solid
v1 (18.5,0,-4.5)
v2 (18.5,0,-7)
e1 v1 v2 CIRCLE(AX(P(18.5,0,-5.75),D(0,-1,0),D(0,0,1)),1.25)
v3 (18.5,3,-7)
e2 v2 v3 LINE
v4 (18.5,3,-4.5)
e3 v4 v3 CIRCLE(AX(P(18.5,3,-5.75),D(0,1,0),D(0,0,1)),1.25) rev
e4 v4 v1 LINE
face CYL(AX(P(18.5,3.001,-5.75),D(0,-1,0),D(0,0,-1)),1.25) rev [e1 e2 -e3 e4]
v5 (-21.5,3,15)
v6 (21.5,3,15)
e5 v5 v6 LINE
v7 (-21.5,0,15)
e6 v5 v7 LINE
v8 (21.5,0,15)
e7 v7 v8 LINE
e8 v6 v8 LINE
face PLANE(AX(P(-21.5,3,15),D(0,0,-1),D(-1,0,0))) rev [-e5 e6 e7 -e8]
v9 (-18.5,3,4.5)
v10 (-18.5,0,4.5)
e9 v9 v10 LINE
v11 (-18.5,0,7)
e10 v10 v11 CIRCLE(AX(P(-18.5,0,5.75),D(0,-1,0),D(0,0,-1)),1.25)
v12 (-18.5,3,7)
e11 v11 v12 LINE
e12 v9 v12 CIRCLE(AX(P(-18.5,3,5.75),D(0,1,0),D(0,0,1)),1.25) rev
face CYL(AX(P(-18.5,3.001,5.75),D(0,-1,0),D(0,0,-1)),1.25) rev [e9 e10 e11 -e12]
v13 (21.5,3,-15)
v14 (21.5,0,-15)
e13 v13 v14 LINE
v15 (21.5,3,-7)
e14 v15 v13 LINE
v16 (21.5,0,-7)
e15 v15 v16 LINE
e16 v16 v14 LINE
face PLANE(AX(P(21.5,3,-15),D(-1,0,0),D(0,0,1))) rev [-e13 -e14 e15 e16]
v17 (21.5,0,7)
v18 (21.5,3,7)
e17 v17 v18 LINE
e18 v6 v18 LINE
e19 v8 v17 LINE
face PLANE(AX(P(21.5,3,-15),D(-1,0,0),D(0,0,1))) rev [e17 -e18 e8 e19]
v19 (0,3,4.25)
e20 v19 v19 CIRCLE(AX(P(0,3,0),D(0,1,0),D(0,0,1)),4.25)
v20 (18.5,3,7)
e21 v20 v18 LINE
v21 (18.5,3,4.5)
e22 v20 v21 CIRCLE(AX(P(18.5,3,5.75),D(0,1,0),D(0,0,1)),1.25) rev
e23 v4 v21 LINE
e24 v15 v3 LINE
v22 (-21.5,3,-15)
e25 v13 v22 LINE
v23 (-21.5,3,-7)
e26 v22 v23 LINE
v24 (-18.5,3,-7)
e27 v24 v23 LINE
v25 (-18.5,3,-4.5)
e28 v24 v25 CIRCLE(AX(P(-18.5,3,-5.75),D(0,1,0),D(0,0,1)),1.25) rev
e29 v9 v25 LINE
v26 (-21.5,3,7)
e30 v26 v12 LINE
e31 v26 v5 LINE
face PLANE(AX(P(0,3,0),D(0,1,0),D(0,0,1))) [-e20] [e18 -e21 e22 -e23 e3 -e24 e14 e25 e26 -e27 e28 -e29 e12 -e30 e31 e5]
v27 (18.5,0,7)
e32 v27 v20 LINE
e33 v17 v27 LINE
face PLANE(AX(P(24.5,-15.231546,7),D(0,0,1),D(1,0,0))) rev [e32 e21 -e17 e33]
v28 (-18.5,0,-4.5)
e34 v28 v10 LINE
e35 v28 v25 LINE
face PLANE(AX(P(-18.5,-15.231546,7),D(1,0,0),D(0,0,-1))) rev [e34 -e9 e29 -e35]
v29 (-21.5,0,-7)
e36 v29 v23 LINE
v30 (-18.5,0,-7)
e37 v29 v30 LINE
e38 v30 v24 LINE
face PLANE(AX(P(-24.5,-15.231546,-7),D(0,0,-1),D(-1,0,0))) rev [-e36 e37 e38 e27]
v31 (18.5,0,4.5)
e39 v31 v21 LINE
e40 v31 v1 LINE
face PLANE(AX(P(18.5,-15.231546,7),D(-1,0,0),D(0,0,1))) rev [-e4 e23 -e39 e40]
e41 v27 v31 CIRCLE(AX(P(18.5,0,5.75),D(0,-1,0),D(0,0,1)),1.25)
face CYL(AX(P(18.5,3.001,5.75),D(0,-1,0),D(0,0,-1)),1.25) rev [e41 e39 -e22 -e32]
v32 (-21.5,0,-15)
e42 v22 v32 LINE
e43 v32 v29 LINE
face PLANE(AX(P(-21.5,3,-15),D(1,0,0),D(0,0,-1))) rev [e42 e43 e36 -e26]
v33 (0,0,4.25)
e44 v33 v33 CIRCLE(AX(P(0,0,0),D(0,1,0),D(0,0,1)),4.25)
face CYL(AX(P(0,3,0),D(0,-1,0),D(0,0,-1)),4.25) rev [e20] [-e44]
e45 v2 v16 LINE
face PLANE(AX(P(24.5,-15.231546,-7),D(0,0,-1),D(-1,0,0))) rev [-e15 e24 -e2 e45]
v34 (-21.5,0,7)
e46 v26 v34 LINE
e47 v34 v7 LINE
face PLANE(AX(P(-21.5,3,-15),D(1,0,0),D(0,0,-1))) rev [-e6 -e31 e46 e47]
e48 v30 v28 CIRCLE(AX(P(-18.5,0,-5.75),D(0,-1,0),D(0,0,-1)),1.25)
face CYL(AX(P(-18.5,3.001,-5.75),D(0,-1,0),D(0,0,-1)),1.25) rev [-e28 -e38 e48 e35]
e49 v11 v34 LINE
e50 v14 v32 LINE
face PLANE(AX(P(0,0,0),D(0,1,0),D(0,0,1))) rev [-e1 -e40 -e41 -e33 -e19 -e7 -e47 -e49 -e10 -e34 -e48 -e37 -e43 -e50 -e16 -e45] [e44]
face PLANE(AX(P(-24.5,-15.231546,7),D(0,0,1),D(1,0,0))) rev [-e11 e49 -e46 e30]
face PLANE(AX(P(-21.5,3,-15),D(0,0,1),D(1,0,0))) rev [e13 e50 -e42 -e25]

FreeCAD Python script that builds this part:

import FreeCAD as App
import Part
import Sketcher

V = App.Vector

doc = App.newDocument("Part")
body = doc.addObject("PartDesign::Body", "Body")

sketch1 = body.newObject("Sketcher::SketchObject", "Sketch")
sketch1.AttachmentSupport = (doc.getObject("XZ_Plane"), [""])
sketch1.MapMode = "FlatFace"
sketch1.addGeometry(Part.LineSegment(V(-21.5, -15, 0), V(-21.5, 15, 0)), False)
sketch1.addGeometry(Part.LineSegment(V(-21.5, 15, 0), V(21.5, 15, 0)), False)
sketch1.addGeometry(Part.LineSegment(V(21.5, 15, 0), V(21.5, -15, 0)), False)
sketch1.addGeometry(Part.LineSegment(V(21.5, -15, 0), V(-21.5, -15, 0)), False)
sketch1.addGeometry(Part.Circle(V(0, 0, 0), V(0, 0, 1), 4.2), False)
sketch1.addConstraint(Sketcher.Constraint("Coincident", 0, 2, 1, 1))
sketch1.addConstraint(Sketcher.Constraint("Coincident", 1, 2, 2, 1))
sketch1.addConstraint(Sketcher.Constraint("Coincident", 2, 2, 3, 1))
sketch1.addConstraint(Sketcher.Constraint("Coincident", 3, 2, 0, 1))
sketch1.addConstraint(Sketcher.Constraint("Vertical", 0))
sketch1.addConstraint(Sketcher.Constraint("Horizontal", 1))
sketch1.addConstraint(Sketcher.Constraint("Vertical", 2))
sketch1.addConstraint(Sketcher.Constraint("Horizontal", 3))
sketch1.addConstraint(Sketcher.Constraint("Coincident", 4, 3, -1, 1))
sketch1.addConstraint(Sketcher.Constraint("Symmetric", 0, 2, 2, 2, -1, 1))
sketch1.addConstraint(Sketcher.Constraint("Diameter", 4, 8.5))
sketch1.addConstraint(Sketcher.Constraint("DistanceX", 1, 1, 1, 2, 43.0))
sketch1.addConstraint(Sketcher.Constraint("DistanceY", 0, 1, 0, 2, 30.0))
pad1 = body.newObject("PartDesign::Pad", "Pad")
pad1.Profile = sketch1
pad1.Length = 3
pad1.Reversed = True

sketch2 = body.newObject("Sketcher::SketchObject", "Sketch001")
sketch2.AttachmentSupport = (doc.getObject("XZ_Plane"), [""])
sketch2.MapMode = "FlatFace"
sketch2.AttachmentOffset = App.Placement(V(0, 0, -3), App.Rotation())
sketch2.addGeometry(Part.LineSegment(V(18, -7, 0), V(18, 7, 0)), False)
sketch2.addGeometry(Part.LineSegment(V(18, 7, 0), V(24, 7, 0)), False)
sketch2.addGeometry(Part.LineSegment(V(24, 7, 0), V(24, -7, 0)), False)
sketch2.addGeometry(Part.LineSegment(V(24, -7, 0), V(18, -7, 0)), False)
sketch2.addGeometry(Part.LineSegment(V(-24, -7, 0), V(-24, 7, 0)), False)
sketch2.addGeometry(Part.LineSegment(V(-24, 7, 0), V(-18, 7, 0)), False)
sketch2.addGeometry(Part.LineSegment(V(-18, 7, 0), V(-18, -7, 0)), False)
sketch2.addGeometry(Part.LineSegment(V(-18, -7, 0), V(-24, -7, 0)), False)
sketch2.addConstraint(Sketcher.Constraint("Coincident", 0, 2, 1, 1))
sketch2.addConstraint(Sketcher.Constraint("Coincident", 1, 2, 2, 1))
sketch2.addConstraint(Sketcher.Constraint("Coincident", 2, 2, 3, 1))
sketch2.addConstraint(Sketcher.Constraint("Coincident", 3, 2, 0, 1))
sketch2.addConstraint(Sketcher.Constraint("Coincident", 4, 2, 5, 1))
sketch2.addConstraint(Sketcher.Constraint("Coincident", 5, 2, 6, 1))
sketch2.addConstraint(Sketcher.Constraint("Coincident", 6, 2, 7, 1))
sketch2.addConstraint(Sketcher.Constraint("Coincident", 7, 2, 4, 1))
sketch2.addConstraint(Sketcher.Constraint("Vertical", 0))
sketch2.addConstraint(Sketcher.Constraint("Horizontal", 1))
sketch2.addConstraint(Sketcher.Constraint("Vertical", 2))
sketch2.addConstraint(Sketcher.Constraint("Horizontal", 3))
sketch2.addConstraint(Sketcher.Constraint("Vertical", 4))
sketch2.addConstraint(Sketcher.Constraint("Horizontal", 5))
sketch2.addConstraint(Sketcher.Constraint("Vertical", 6))
sketch2.addConstraint(Sketcher.Constraint("Horizontal", 7))
sketch2.addConstraint(Sketcher.Constraint("Symmetric", 2, 2, 4, 2, -1, 1))
sketch2.addConstraint(Sketcher.Constraint("Symmetric", 0, 2, 6, 2, -1, 1))
sketch2.addConstraint(Sketcher.Constraint("Horizontal", 1, 2, 4, 2))
sketch2.addConstraint(Sketcher.Constraint("DistanceX", 1, 1, 1, 2, 6.0))
sketch2.addConstraint(Sketcher.Constraint("DistanceY", 0, 1, 0, 2, 14.0))
sketch2.addConstraint(Sketcher.Constraint("DistanceX", 4, 2, 0, 2, 43.0))
pocket1 = body.newObject("PartDesign::Pocket", "Pocket")
pocket1.Profile = sketch2
pocket1.Length = 3
pocket1.Reversed = True

sketch3 = body.newObject("Sketcher::SketchObject", "Sketch002")
sketch3.AttachmentSupport = (doc.getObject("XZ_Plane"), [""])
sketch3.MapMode = "FlatFace"
sketch3.addGeometry(Part.Circle(V(-18.5, 5.8, 0), V(0, 0, 1), 1.2), False)
sketch3.addConstraint(Sketcher.Constraint("Diameter", 0, 2.5))
sketch3.addConstraint(Sketcher.Constraint("DistanceX", 0, 3, -1, 1, 18.5))
sketch3.addConstraint(Sketcher.Constraint("DistanceY", -1, 1, 0, 3, 5.75))
pocket2 = body.newObject("PartDesign::Pocket", "Pocket001")
pocket2.Profile = sketch3
pocket2.Type = "UpToFirst"

sketch4 = body.newObject("Sketcher::SketchObject", "Sketch003")
sketch4.AttachmentSupport = (doc.getObject("XZ_Plane"), [""])
sketch4.MapMode = "FlatFace"
sketch4.addGeometry(Part.Circle(V(-18.5, -5.8, 0), V(0, 0, 1), 1.2), False)
sketch4.addConstraint(Sketcher.Constraint("Diameter", 0, 2.5))
sketch4.addConstraint(Sketcher.Constraint("DistanceX", 0, 3, -1, 1, 18.5))
sketch4.addConstraint(Sketcher.Constraint("DistanceY", 0, 3, -1, 1, 5.75))
pocket3 = body.newObject("PartDesign::Pocket", "Pocket002")
pocket3.Profile = sketch4
pocket3.Type = "UpToFirst"

sketch5 = body.newObject("Sketcher::SketchObject", "Sketch004")
sketch5.AttachmentSupport = (doc.getObject("XZ_Plane"), [""])
sketch5.MapMode = "FlatFace"
sketch5.addGeometry(Part.Circle(V(18.5, -5.8, 0), V(0, 0, 1), 1.2), False)
sketch5.addConstraint(Sketcher.Constraint("Diameter", 0, 2.5))
sketch5.addConstraint(Sketcher.Constraint("DistanceX", -1, 1, 0, 3, 18.5))
sketch5.addConstraint(Sketcher.Constraint("DistanceY", 0, 3, -1, 1, 5.75))
pocket4 = body.newObject("PartDesign::Pocket", "Pocket003")
pocket4.Profile = sketch5
pocket4.Type = "UpToFirst"

sketch6 = body.newObject("Sketcher::SketchObject", "Sketch005")
sketch6.AttachmentSupport = (doc.getObject("XZ_Plane"), [""])
sketch6.MapMode = "FlatFace"
sketch6.addGeometry(Part.Circle(V(18.5, 5.8, 0), V(0, 0, 1), 1.2), False)
sketch6.addConstraint(Sketcher.Constraint("Diameter", 0, 2.5))
sketch6.addConstraint(Sketcher.Constraint("DistanceX", -1, 1, 0, 3, 18.5))
sketch6.addConstraint(Sketcher.Constraint("DistanceY", -1, 1, 0, 3, 5.75))
pocket5 = body.newObject("PartDesign::Pocket", "Pocket004")
pocket5.Profile = sketch6
pocket5.Type = "UpToFirst"

doc.recompute()
